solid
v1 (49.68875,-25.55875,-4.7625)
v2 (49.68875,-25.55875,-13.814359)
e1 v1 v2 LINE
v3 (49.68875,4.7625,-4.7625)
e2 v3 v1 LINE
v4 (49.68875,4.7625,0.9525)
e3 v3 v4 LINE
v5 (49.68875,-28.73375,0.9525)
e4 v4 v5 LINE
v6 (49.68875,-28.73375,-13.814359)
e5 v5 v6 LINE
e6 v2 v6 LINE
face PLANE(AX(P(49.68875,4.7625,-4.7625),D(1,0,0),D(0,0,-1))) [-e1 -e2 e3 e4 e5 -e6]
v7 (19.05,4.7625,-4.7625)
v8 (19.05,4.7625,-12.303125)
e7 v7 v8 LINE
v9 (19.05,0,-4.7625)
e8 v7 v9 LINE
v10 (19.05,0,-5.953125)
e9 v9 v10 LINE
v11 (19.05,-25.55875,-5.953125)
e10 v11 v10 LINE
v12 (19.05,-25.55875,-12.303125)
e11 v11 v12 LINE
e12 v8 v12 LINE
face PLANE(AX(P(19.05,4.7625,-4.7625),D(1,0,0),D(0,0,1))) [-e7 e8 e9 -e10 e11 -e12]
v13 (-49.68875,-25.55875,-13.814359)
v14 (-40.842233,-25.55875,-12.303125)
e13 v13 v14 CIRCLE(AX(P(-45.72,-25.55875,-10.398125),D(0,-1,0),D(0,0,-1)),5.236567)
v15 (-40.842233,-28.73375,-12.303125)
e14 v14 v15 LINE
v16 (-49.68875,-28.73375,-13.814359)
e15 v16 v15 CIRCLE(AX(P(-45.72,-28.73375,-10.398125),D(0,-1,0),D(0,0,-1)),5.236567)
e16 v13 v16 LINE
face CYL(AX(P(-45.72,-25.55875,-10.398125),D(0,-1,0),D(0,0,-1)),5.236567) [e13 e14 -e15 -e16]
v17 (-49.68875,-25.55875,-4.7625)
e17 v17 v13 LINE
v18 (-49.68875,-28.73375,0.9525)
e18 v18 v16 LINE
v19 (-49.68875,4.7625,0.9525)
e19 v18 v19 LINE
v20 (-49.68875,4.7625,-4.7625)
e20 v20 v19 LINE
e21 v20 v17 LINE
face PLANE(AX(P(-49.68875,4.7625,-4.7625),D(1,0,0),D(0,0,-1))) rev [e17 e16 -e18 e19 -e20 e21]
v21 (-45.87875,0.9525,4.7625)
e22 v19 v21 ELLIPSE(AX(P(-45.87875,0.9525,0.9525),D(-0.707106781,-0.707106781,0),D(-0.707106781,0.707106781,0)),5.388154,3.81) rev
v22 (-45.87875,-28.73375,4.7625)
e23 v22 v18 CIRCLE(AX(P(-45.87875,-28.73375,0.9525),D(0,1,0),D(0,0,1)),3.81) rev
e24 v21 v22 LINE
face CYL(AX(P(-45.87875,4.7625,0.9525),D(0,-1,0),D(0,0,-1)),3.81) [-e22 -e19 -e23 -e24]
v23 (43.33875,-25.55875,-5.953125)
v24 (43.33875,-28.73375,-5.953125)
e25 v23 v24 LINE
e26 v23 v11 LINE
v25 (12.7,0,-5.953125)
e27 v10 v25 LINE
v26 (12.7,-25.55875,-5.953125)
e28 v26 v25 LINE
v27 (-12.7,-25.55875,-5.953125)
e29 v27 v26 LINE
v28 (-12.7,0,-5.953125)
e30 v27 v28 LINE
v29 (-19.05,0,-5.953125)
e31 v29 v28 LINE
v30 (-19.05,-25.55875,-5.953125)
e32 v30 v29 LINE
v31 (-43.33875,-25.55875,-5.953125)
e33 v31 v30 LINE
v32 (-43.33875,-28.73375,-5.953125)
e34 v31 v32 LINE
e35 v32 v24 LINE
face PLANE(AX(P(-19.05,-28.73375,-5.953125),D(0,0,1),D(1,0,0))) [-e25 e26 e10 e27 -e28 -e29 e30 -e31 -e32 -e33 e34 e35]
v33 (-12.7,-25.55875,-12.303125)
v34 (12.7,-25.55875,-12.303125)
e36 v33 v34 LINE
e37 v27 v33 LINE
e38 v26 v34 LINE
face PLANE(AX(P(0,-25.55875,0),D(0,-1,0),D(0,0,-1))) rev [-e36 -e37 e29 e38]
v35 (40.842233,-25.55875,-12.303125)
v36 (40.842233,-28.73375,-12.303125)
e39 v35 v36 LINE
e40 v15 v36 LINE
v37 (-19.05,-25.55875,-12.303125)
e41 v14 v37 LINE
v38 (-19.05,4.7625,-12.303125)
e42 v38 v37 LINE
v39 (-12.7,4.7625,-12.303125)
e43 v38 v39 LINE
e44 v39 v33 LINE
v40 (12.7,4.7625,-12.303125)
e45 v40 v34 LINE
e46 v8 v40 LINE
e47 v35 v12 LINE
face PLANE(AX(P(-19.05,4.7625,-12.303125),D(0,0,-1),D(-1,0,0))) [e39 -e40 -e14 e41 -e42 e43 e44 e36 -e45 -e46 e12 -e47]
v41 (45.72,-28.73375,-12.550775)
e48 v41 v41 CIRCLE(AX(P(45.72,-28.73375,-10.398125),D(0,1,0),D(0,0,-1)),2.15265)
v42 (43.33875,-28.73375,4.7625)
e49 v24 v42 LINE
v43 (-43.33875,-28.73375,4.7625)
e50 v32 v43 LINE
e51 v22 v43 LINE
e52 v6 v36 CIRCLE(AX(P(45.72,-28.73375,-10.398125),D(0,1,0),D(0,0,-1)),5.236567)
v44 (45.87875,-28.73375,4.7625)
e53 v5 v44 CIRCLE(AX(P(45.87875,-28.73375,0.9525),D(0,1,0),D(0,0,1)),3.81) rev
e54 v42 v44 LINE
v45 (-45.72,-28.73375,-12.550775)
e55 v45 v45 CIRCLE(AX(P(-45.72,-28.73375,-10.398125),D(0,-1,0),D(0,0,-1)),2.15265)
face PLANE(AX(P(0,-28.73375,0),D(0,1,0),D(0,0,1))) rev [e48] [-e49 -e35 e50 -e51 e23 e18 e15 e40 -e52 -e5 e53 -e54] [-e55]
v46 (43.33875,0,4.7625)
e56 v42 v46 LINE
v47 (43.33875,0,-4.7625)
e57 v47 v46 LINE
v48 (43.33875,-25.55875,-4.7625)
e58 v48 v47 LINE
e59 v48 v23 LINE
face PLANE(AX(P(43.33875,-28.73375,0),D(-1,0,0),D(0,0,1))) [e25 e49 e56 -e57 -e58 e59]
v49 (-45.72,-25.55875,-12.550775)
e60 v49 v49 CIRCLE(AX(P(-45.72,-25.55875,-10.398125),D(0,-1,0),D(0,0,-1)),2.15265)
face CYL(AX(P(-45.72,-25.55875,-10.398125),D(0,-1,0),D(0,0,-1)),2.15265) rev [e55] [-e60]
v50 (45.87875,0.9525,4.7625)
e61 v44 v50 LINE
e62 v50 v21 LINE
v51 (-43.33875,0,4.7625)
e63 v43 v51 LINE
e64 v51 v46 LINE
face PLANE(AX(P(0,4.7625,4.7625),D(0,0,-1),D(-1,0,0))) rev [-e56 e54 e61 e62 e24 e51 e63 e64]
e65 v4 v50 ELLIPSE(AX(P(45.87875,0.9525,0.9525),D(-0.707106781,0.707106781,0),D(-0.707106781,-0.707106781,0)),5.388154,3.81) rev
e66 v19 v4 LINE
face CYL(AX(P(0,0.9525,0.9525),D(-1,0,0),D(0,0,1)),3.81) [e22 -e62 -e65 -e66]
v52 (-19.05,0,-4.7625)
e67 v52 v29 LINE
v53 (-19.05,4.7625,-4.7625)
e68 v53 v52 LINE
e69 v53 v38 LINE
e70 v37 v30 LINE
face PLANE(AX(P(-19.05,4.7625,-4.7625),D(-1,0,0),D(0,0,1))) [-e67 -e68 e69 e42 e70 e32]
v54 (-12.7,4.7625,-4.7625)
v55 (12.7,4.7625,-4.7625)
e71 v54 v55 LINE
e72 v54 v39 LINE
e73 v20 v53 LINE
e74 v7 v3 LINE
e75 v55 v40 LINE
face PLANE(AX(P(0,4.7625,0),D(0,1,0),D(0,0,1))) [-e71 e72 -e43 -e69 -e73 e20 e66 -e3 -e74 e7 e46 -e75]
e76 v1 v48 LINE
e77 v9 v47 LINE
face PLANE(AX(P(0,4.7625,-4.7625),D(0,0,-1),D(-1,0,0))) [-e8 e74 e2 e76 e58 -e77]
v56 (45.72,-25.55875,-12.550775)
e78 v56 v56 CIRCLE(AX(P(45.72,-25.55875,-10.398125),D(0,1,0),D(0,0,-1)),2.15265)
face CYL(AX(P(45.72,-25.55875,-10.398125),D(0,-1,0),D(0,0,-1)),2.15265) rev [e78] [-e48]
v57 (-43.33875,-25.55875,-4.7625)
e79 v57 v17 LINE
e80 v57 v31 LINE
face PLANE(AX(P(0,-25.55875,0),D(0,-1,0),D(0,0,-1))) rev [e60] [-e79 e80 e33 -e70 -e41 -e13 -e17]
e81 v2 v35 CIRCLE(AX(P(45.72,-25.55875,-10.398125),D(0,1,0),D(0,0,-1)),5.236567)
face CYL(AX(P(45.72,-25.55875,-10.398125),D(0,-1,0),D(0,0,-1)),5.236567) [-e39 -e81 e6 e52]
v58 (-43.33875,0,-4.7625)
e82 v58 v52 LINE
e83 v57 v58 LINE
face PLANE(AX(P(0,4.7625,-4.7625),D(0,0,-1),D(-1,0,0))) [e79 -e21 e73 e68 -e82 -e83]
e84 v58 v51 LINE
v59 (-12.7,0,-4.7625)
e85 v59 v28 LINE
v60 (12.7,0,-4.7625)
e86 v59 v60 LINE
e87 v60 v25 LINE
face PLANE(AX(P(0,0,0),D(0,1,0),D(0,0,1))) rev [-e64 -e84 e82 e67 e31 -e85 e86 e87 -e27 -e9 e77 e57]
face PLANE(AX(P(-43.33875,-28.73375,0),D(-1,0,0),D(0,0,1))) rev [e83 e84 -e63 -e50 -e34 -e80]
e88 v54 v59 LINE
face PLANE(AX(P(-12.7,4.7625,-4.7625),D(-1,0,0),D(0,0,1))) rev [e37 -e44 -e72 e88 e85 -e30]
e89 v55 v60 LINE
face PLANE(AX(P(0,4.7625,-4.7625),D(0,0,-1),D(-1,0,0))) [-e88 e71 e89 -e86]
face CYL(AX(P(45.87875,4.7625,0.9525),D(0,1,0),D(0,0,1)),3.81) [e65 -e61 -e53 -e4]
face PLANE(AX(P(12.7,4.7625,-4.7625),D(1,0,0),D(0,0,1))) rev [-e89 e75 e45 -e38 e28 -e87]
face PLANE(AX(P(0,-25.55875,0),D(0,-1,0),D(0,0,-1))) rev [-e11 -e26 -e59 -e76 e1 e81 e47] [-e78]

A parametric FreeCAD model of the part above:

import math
import FreeCAD as App
import Part
import Sketcher

V = App.Vector
Q = App.Units.Quantity


def edges_at(feature, points):
    """Names of the edges that pass closest to the given points."""
    edges = feature.Shape.Edges
    near = lambda p: min(range(len(edges)), key=lambda i: edges[i].distToShape(Part.Vertex(*p))[0])
    return sorted({f"Edge{near(p) + 1}" for p in points})

doc = App.newDocument("Part")
body = doc.addObject("PartDesign::Body", "Body")

sketch1 = body.newObject("Sketcher::SketchObject", "Sketch")
sketch1.AttachmentSupport = (doc.getObject("XZ_Plane"), [""])
sketch1.MapMode = "FlatFace"
sketch1.addGeometry(Part.LineSegment(V(-50, -5, 0), V(-50, 5, 0)), False)
sketch1.addGeometry(Part.LineSegment(V(-50, 5, 0), V(50, 5, 0)), False)
sketch1.addGeometry(Part.LineSegment(V(50, 5, 0), V(50, -5, 0)), False)
sketch1.addGeometry(Part.LineSegment(V(50, -5, 0), V(-13, -5, 0)), False)
sketch1.addGeometry(Part.LineSegment(V(-13, -5, 0), V(-13, -12, 0)), False)
sketch1.addGeometry(Part.LineSegment(V(-13, -12, 0), V(-19, -12, 0)), False)
sketch1.addGeometry(Part.LineSegment(V(-19, -12, 0), V(-19, -5, 0)), False)
sketch1.addGeometry(Part.LineSegment(V(-19, -5, 0), V(-50, -5, 0)), False)
sketch1.addConstraint(Sketcher.Constraint("Coincident", 0, 2, 1, 1))
sketch1.addConstraint(Sketcher.Constraint("Coincident", 1, 2, 2, 1))
sketch1.addConstraint(Sketcher.Constraint("Coincident", 2, 2, 3, 1))
sketch1.addConstraint(Sketcher.Constraint("Coincident", 3, 2, 4, 1))
sketch1.addConstraint(Sketcher.Constraint("Coincident", 4, 2, 5, 1))
sketch1.addConstraint(Sketcher.Constraint("Coincident", 5, 2, 6, 1))
sketch1.addConstraint(Sketcher.Constraint("Coincident", 6, 2, 7, 1))
sketch1.addConstraint(Sketcher.Constraint("Coincident", 7, 2, 0, 1))
sketch1.addConstraint(Sketcher.Constraint("Vertical", 0))
sketch1.addConstraint(Sketcher.Constraint("Horizontal", 1))
sketch1.addConstraint(Sketcher.Constraint("Vertical", 2))
sketch1.addConstraint(Sketcher.Constraint("Horizontal", 3))
sketch1.addConstraint(Sketcher.Constraint("Vertical", 4))
sketch1.addConstraint(Sketcher.Constraint("Horizontal", 5))
sketch1.addConstraint(Sketcher.Constraint("Vertical", 6))
sketch1.addConstraint(Sketcher.Constraint("Horizontal", 7))
sketch1.addConstraint(Sketcher.Constraint("Symmetric", 0, 2, 2, 2, -1, 1))
sketch1.addConstraint(Sketcher.Constraint("Horizontal", 3, 2, 6, 2))
sketch1.addConstraint(Sketcher.Constraint("DistanceX", 5, 2, 5, 1, Q("0.25 in")))
sketch1.addConstraint(Sketcher.Constraint("DistanceX", 3, 2, -1, 1, Q("0.5 in")))
sketch1.addConstraint(Sketcher.Constraint("DistanceY", 0, 1, 0, 2, Q("0.375 in")))
sketch1.addConstraint(Sketcher.Constraint("DistanceY", 4, 2, 4, 1, Q("0.296875 in")))
sketch1.addConstraint(Sketcher.Constraint("DistanceX", 1, 1, 1, 2, Q("3.9125 in")))
pad1 = body.newObject("PartDesign::Pad", "Pad")
pad1.Profile = sketch1
pad1.Length = Q("0.1875 in")
pad1.Reversed = True

sketch2 = body.newObject("Sketcher::SketchObject", "Sketch001")
sketch2.AttachmentSupport = (doc.getObject("XZ_Plane"), [""])
sketch2.MapMode = "FlatFace"
sketch2.addGeometry(Part.LineSegment(V(-50, -5, 0), V(-50, 5, 0)), False)
sketch2.addGeometry(Part.LineSegment(V(-50, 5, 0), V(-43, 5, 0)), False)
sketch2.addGeometry(Part.LineSegment(V(-43, 5, 0), V(-43, -5, 0)), False)
sketch2.addGeometry(Part.LineSegment(V(-43, -5, 0), V(-50, -5, 0)), False)
sketch2.addGeometry(Part.LineSegment(V(43, -5, 0), V(43, 5, 0)), False)
sketch2.addGeometry(Part.LineSegment(V(43, 5, 0), V(50, 5, 0)), False)
sketch2.addGeometry(Part.LineSegment(V(50, 5, 0), V(50, -5, 0)), False)
sketch2.addGeometry(Part.LineSegment(V(50, -5, 0), V(43, -5, 0)), False)
sketch2.addGeometry(Part.LineSegment(V(-19, -12, 0), V(-19, -6, 0)), False)
sketch2.addGeometry(Part.LineSegment(V(-19, -6, 0), V(-13, -6, 0)), False)
sketch2.addGeometry(Part.LineSegment(V(-13, -6, 0), V(-13, -12, 0)), False)
sketch2.addGeometry(Part.LineSegment(V(-13, -12, 0), V(-19, -12, 0)), False)
sketch2.addConstraint(Sketcher.Constraint("Coincident", 0, 2, 1, 1))
sketch2.addConstraint(Sketcher.Constraint("Coincident", 1, 2, 2, 1))
sketch2.addConstraint(Sketcher.Constraint("Coincident", 2, 2, 3, 1))
sketch2.addConstraint(Sketcher.Constraint("Coincident", 3, 2, 0, 1))
sketch2.addConstraint(Sketcher.Constraint("Coincident", 4, 2, 5, 1))
sketch2.addConstraint(Sketcher.Constraint("Coincident", 5, 2, 6, 1))
sketch2.addConstraint(Sketcher.Constraint("Coincident", 6, 2, 7, 1))
sketch2.addConstraint(Sketcher.Constraint("Coincident", 7, 2, 4, 1))
sketch2.addConstraint(Sketcher.Constraint("Coincident", 8, 2, 9, 1))
sketch2.addConstraint(Sketcher.Constraint("Coincident", 9, 2, 10, 1))
sketch2.addConstraint(Sketcher.Constraint("Coincident", 10, 2, 11, 1))
sketch2.addConstraint(Sketcher.Constraint("Coincident", 11, 2, 8, 1))
sketch2.addConstraint(Sketcher.Constraint("Vertical", 0))
sketch2.addConstraint(Sketcher.Constraint("Horizontal", 1))
sketch2.addConstraint(Sketcher.Constraint("Vertical", 2))
sketch2.addConstraint(Sketcher.Constraint("Horizontal", 3))
sketch2.addConstraint(Sketcher.Constraint("Vertical", 4))
sketch2.addConstraint(Sketcher.Constraint("Horizontal", 5))
sketch2.addConstraint(Sketcher.Constraint("Vertical", 6))
sketch2.addConstraint(Sketcher.Constraint("Horizontal", 7))
sketch2.addConstraint(Sketcher.Constraint("Vertical", 8))
sketch2.addConstraint(Sketcher.Constraint("Horizontal", 9))
sketch2.addConstraint(Sketcher.Constraint("Vertical", 10))
sketch2.addConstraint(Sketcher.Constraint("Horizontal", 11))
sketch2.addConstraint(Sketcher.Constraint("Symmetric", 2, 2, 4, 2, -1, 1))
sketch2.addConstraint(Sketcher.Constraint("Symmetric", 0, 2, 6, 2, -1, 1))
sketch2.addConstraint(Sketcher.Constraint("Horizontal", 1, 2, 4, 2))
sketch2.addConstraint(Sketcher.Constraint("Equal", 7, 9))
sketch2.addConstraint(Sketcher.Constraint("Equal", 11, 8))
sketch2.addConstraint(Sketcher.Constraint("DistanceX", 1, 1, 1, 2, Q("0.25 in")))
sketch2.addConstraint(Sketcher.Constraint("DistanceX", 9, 2, -1, 1, Q("0.5 in")))
sketch2.addConstraint(Sketcher.Constraint("DistanceY", 0, 1, 0, 2, Q("0.375 in")))
sketch2.addConstraint(Sketcher.Constraint("DistanceY", 8, 2, -1, 1, Q("0.234375 in")))
sketch2.addConstraint(Sketcher.Constraint("DistanceX", 1, 2, 4, 2, Q("3.4125 in")))
pad2 = body.newObject("PartDesign::Pad", "Pad001")
pad2.Profile = sketch2
pad2.Length = 28.73375
body2 = doc.addObject("PartDesign::Body", "Body001")
doc.recompute()

body2.BaseFeature = body
doc.recompute()

mirroring = doc.addObject("Part::Mirroring", "Mirroring")
mirroring.Source = body
mirroring.Base = V(0, 0, 0)
mirroring.Normal = V(1, 0, 0)
body3 = doc.addObject("PartDesign::Body", "Body002")
body3.BaseFeature = mirroring
boolean = body2.newObject("PartDesign::Boolean", "Boolean")
boolean.Type = "Fuse"
boolean.addObjects([body3])
doc.recompute()

sketch3 = body2.newObject("Sketcher::SketchObject", "Sketch002")
sketch3.AttachmentSupport = (doc.getObject("XZ_Plane001"), [""])
sketch3.MapMode = "FlatFace"
sketch3.AttachmentOffset = App.Placement(V(0, 0, 28.73375), App.Rotation())
sketch3.addGeometry(Part.LineSegment(V(-12.7, -6, 0), V(-12.7, -12.3, 0)), False)
sketch3.addGeometry(Part.LineSegment(V(-12.7, -12.3, 0), V(0, -12.3, 0)), False)
sketch3.addGeometry(Part.LineSegment(V(0, -12.3, 0), V(0, -6, 0)), False)
sketch3.addGeometry(Part.LineSegment(V(0, -6, 0), V(-12.7, -6, 0)), False)
sketch3.addGeometry(Part.LineSegment(V(-49.7, 4.8, 0), V(-49.7, -13.8, 0)), False)
sketch3.addGeometry(Part.ArcOfCircle(Part.Circle(V(-45.7, -10.4, 0), V(0, 0, 1), 5.2), math.radians(-139), math.radians(-21)), False)
sketch3.addGeometry(Part.LineSegment(V(-40.8, -12.3, 0), V(-15.9, -12.3, 0)), False)
sketch3.addGeometry(Part.LineSegment(V(-15.9, -12.3, 0), V(-15.9, -6, 0)), False)
sketch3.addGeometry(Part.LineSegment(V(-15.9, -6, 0), V(-43.3, -6, 0)), False)
sketch3.addGeometry(Part.LineSegment(V(-43.3, -6, 0), V(-43.3, 4.8, 0)), False)
sketch3.addGeometry(Part.LineSegment(V(-43.3, 4.8, 0), V(-49.7, 4.8, 0)), False)
sketch3.addGeometry(Part.Circle(V(-45.7, -10.4, 0), V(0, 0, 1), 2.2), False)
sketch3.addConstraint(Sketcher.Constraint("Coincident", 0, 2, 1, 1))
sketch3.addConstraint(Sketcher.Constraint("Coincident", 1, 2, 2, 1))
sketch3.addConstraint(Sketcher.Constraint("Coincident", 2, 2, 3, 1))
sketch3.addConstraint(Sketcher.Constraint("Coincident", 3, 2, 0, 1))
sketch3.addConstraint(Sketcher.Constraint("Coincident", 4, 2, 5, 1))
sketch3.addConstraint(Sketcher.Constraint("Coincident", 5, 2, 6, 1))
sketch3.addConstraint(Sketcher.Constraint("Coincident", 6, 2, 7, 1))
sketch3.addConstraint(Sketcher.Constraint("Coincident", 7, 2, 8, 1))
sketch3.addConstraint(Sketcher.Constraint("Coincident", 8, 2, 9, 1))
sketch3.addConstraint(Sketcher.Constraint("Coincident", 9, 2, 10, 1))
sketch3.addConstraint(Sketcher.Constraint("Coincident", 10, 2, 4, 1))
sketch3.addConstraint(Sketcher.Constraint("Vertical", 0))
sketch3.addConstraint(Sketcher.Constraint("Horizontal", 1))
sketch3.addConstraint(Sketcher.Constraint("Vertical", 2))
sketch3.addConstraint(Sketcher.Constraint("Horizontal", 3))
sketch3.addConstraint(Sketcher.Constraint("Vertical", 4))
sketch3.addConstraint(Sketcher.Constraint("Horizontal", 6))
sketch3.addConstraint(Sketcher.Constraint("Vertical", 7))
sketch3.addConstraint(Sketcher.Constraint("Horizontal", 8))
sketch3.addConstraint(Sketcher.Constraint("Vertical", 9))
sketch3.addConstraint(Sketcher.Constraint("Horizontal", 10))
sketch3.addConstraint(Sketcher.Constraint("Coincident", 11, 3, 5, 3))
sketch3.addConstraint(Sketcher.Constraint("PointOnObject", 1, 2, -2))
sketch3.addConstraint(Sketcher.Constraint("Horizontal", 1, 2, 5, 2))
sketch3.addConstraint(Sketcher.Constraint("Horizontal", 3, 2, 7, 2))
sketch3.addConstraint(Sketcher.Constraint("Equal", 10, 0))
sketch3.addConstraint(Sketcher.Constraint("DistanceX", 1, 1, 1, 2, Q("0.5 in")))
sketch3.addConstraint(Sketcher.Constraint("Diameter", 11, Q("0.1695 in")))
sketch3.addConstraint(Sketcher.Constraint("DistanceX", 10, 2, 10, 1, Q("0.25 in")))
sketch3.addConstraint(Sketcher.Constraint("DistanceX", 5, 3, -1, 1, Q("1.8 in")))
sketch3.addConstraint(Sketcher.Constraint("DistanceY", 9, 1, 9, 2, Q("0.421875 in")))
sketch3.addConstraint(Sketcher.Constraint("DistanceY", 0, 2, -1, 1, Q("0.484375 in")))
sketch3.addConstraint(Sketcher.Constraint("DistanceX", 6, 2, -1, 1, Q("0.625 in")))
sketch3.addConstraint(Sketcher.Constraint("DistanceY", 0, 2, 11, 3, Q("0.075 in")))
sketch3.addConstraint(Sketcher.Constraint("DistanceX", 4, 2, 11, 3, Q("0.15625 in")))
sketch3.addConstraint(Sketcher.Constraint("Radius", 5, 5.236567))
pad3 = body2.newObject("PartDesign::Pad", "Pad002")
pad3.Profile = sketch3
pad3.Length = Q("0.125 in")
pad3.Reversed = True
doc.recompute()

mirrored = body2.newObject("PartDesign::Mirrored", "Mirrored")
mirrored.Originals = [pad3]
mirrored.MirrorPlane = (doc.getObject("YZ_Plane001"), [""])
body2.Tip = mirrored
doc.recompute()

fillet = body2.newObject("PartDesign::Fillet", "Fillet")
fillet.Base = (mirrored, edges_at(mirrored, [(0, 4.763, 4.763), (-49.689, -11.986, 4.763), (49.689, -11.986, 4.763)]))
fillet.Radius = Q("0.15 in")
mirroring.Visibility = False

doc.recompute()
